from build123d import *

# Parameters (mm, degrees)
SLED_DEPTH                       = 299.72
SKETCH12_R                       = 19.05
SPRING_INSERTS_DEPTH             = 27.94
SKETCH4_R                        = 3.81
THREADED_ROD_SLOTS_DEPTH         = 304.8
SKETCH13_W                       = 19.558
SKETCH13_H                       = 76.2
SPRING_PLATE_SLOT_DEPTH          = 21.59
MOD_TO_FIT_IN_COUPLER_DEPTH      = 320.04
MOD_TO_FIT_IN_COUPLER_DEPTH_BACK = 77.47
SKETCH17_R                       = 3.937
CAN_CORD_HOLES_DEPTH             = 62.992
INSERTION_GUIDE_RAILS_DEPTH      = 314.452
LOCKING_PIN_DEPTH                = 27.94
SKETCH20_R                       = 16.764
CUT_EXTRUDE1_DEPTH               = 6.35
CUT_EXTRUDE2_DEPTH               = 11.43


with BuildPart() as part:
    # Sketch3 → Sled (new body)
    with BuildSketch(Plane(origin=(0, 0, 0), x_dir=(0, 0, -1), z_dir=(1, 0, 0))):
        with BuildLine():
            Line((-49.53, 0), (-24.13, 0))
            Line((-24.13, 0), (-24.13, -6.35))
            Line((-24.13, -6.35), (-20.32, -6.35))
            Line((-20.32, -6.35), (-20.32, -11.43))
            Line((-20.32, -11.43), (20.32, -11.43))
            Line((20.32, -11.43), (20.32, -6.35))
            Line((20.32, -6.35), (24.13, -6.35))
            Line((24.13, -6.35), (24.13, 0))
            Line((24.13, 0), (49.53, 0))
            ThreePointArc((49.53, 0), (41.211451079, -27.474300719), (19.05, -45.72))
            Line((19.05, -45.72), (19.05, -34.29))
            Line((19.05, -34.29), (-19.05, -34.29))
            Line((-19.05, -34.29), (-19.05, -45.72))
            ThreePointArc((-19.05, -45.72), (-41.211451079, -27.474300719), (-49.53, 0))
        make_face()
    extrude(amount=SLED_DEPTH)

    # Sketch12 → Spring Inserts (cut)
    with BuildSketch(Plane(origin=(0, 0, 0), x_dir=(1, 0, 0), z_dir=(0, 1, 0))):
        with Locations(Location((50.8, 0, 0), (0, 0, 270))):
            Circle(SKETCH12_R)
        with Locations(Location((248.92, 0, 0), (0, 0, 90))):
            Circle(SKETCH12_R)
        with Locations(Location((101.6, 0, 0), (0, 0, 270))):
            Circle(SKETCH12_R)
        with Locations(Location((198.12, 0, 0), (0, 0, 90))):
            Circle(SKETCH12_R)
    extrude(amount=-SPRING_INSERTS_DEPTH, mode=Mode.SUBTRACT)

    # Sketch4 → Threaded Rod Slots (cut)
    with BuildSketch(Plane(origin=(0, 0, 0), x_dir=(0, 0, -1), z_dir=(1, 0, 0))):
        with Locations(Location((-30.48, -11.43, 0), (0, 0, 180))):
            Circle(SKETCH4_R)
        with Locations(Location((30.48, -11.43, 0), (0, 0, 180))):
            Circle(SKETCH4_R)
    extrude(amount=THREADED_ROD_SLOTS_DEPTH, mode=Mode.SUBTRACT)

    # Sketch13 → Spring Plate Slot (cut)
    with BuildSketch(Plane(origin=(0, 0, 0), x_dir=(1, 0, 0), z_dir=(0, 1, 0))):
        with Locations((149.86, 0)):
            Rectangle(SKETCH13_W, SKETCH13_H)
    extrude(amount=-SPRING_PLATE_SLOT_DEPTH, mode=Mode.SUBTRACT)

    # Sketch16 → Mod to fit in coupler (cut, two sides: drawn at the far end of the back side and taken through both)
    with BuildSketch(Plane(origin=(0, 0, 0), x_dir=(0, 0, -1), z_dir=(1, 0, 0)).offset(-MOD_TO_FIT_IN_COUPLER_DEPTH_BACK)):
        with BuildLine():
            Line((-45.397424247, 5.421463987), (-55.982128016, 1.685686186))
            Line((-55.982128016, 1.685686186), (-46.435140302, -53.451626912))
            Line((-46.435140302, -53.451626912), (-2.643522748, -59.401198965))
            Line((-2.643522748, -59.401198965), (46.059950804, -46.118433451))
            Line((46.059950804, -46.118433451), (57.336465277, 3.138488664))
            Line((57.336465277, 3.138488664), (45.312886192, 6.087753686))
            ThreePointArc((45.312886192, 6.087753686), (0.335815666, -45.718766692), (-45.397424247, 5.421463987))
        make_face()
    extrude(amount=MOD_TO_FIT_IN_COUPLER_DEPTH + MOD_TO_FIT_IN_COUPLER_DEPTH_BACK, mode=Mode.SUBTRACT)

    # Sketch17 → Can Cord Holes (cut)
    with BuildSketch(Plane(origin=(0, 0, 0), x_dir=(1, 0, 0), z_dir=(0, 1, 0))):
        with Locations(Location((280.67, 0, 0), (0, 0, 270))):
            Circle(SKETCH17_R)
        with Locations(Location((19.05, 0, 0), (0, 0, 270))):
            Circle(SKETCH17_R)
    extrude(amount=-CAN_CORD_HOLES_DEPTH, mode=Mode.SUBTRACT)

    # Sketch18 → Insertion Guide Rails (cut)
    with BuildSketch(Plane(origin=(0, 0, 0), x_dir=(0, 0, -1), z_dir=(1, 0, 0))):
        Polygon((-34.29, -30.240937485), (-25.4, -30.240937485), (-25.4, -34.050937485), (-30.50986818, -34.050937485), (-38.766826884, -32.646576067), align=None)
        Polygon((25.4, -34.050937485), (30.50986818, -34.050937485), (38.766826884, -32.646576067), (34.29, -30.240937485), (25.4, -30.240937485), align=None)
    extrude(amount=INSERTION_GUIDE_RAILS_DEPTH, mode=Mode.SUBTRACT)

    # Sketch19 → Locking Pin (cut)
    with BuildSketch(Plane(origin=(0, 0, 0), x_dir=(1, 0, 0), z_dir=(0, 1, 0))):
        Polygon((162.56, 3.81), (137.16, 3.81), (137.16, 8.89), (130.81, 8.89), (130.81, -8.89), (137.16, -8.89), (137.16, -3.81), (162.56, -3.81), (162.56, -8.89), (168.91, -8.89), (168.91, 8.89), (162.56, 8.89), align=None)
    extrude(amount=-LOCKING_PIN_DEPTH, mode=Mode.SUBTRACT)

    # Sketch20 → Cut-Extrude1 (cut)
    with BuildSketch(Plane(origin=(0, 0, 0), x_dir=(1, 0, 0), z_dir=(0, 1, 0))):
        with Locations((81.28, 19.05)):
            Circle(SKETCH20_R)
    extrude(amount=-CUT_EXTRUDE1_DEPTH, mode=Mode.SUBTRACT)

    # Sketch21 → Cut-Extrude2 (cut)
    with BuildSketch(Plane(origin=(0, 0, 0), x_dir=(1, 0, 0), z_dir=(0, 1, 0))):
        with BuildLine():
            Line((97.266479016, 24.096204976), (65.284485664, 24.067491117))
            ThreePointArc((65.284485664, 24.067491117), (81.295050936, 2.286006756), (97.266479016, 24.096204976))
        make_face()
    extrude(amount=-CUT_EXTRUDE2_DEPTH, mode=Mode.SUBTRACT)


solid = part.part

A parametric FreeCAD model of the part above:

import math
import FreeCAD as App
import Part
import Sketcher
from FreeCAD import Vector
Q = App.Units.Quantity


def add_polygon(sketch, points):
    """Adds a closed chain of lines whose ends are joined by coincident constraints."""
    first, n = sketch.GeometryCount, len(points)
    for a, b in zip(points, points[1:] + points[:1]):
        sketch.addGeometry(Part.LineSegment(App.Vector(*a, 0), App.Vector(*b, 0)), False)
    for i in range(n):
        sketch.addConstraint(Sketcher.Constraint("Coincident", first + i, 2, first + (i + 1) % n, 1))

doc = App.newDocument("Part")
body = doc.addObject("PartDesign::Body", "Body")

# Sketch on YZ plane
sketch1 = doc.addObject("Sketcher::SketchObject", "Sketch")
body.addObject(sketch1)
sketch1.AttachmentSupport = (doc.YZ_Plane, [""])
sketch1.MapMode = "FlatFace"
sketch1.addGeometry(Part.LineSegment(Vector(0, 24.1, 0), Vector(0, 49.5, 0)), False)
sketch1.addGeometry(Part.ArcOfCircle(Part.Circle(Vector(0, 0, 0), Vector(0, 0, 1), 49.5), math.radians(90), math.radians(157)), False)
sketch1.addGeometry(Part.LineSegment(Vector(-45.7, 19.1, 0), Vector(-34.3, 19.1, 0)), False)
sketch1.addGeometry(Part.LineSegment(Vector(-34.3, 19.1, 0), Vector(-34.3, -19.1, 0)), False)
sketch1.addGeometry(Part.LineSegment(Vector(-34.3, -19.1, 0), Vector(-45.7, -19.1, 0)), False)
sketch1.addGeometry(Part.ArcOfCircle(Part.Circle(Vector(0, 0, 0), Vector(0, 0, 1), 49.5), math.radians(-157), math.radians(-90)), False)
sketch1.addGeometry(Part.LineSegment(Vector(0, -49.5, 0), Vector(0, -24.1, 0)), False)
sketch1.addGeometry(Part.LineSegment(Vector(0, -24.1, 0), Vector(-6.3, -24.1, 0)), False)
sketch1.addGeometry(Part.LineSegment(Vector(-6.3, -24.1, 0), Vector(-6.3, -20.3, 0)), False)
sketch1.addGeometry(Part.LineSegment(Vector(-6.3, -20.3, 0), Vector(-11.4, -20.3, 0)), False)
sketch1.addGeometry(Part.LineSegment(Vector(-11.4, -20.3, 0), Vector(-11.4, 20.3, 0)), False)
sketch1.addGeometry(Part.LineSegment(Vector(-11.4, 20.3, 0), Vector(-6.3, 20.3, 0)), False)
sketch1.addGeometry(Part.LineSegment(Vector(-6.3, 20.3, 0), Vector(-6.3, 24.1, 0)), False)
sketch1.addGeometry(Part.LineSegment(Vector(-6.3, 24.1, 0), Vector(0, 24.1, 0)), False)
sketch1.addConstraint(Sketcher.Constraint("Coincident", 0, 2, 1, 1))
sketch1.addConstraint(Sketcher.Constraint("Coincident", 1, 2, 2, 1))
sketch1.addConstraint(Sketcher.Constraint("Coincident", 2, 2, 3, 1))
sketch1.addConstraint(Sketcher.Constraint("Coincident", 3, 2, 4, 1))
sketch1.addConstraint(Sketcher.Constraint("Coincident", 4, 2, 5, 1))
sketch1.addConstraint(Sketcher.Constraint("Coincident", 5, 2, 6, 1))
sketch1.addConstraint(Sketcher.Constraint("Coincident", 6, 2, 7, 1))
sketch1.addConstraint(Sketcher.Constraint("Coincident", 7, 2, 8, 1))
sketch1.addConstraint(Sketcher.Constraint("Coincident", 8, 2, 9, 1))
sketch1.addConstraint(Sketcher.Constraint("Coincident", 9, 2, 10, 1))
sketch1.addConstraint(Sketcher.Constraint("Coincident", 10, 2, 11, 1))
sketch1.addConstraint(Sketcher.Constraint("Coincident", 11, 2, 12, 1))
sketch1.addConstraint(Sketcher.Constraint("Coincident", 12, 2, 13, 1))
sketch1.addConstraint(Sketcher.Constraint("Coincident", 13, 2, 0, 1))
sketch1.addConstraint(Sketcher.Constraint("Vertical", 0))
sketch1.addConstraint(Sketcher.Constraint("Horizontal", 2))
sketch1.addConstraint(Sketcher.Constraint("Vertical", 3))
sketch1.addConstraint(Sketcher.Constraint("Horizontal", 4))
sketch1.addConstraint(Sketcher.Constraint("Vertical", 6))
sketch1.addConstraint(Sketcher.Constraint("Horizontal", 7))
sketch1.addConstraint(Sketcher.Constraint("Vertical", 8))
sketch1.addConstraint(Sketcher.Constraint("Horizontal", 9))
sketch1.addConstraint(Sketcher.Constraint("Vertical", 10))
sketch1.addConstraint(Sketcher.Constraint("Horizontal", 11))
sketch1.addConstraint(Sketcher.Constraint("Vertical", 12))
sketch1.addConstraint(Sketcher.Constraint("Horizontal", 13))
sketch1.addConstraint(Sketcher.Constraint("Coincident", 1, 3, -1, 1))
sketch1.addConstraint(Sketcher.Constraint("Coincident", 5, 3, -1, 1))
sketch1.addConstraint(Sketcher.Constraint("Equal", 1, 5))
sketch1.addConstraint(Sketcher.Constraint("Symmetric", 6, 2, 13, 2, -1, 1))
sketch1.addConstraint(Sketcher.Constraint("Symmetric", 8, 2, 11, 2, -1))
sketch1.addConstraint(Sketcher.Constraint("PointOnObject", 0, 2, -2))
sketch1.addConstraint(Sketcher.Constraint("Vertical", 1, 2, 4, 2))
sketch1.addConstraint(Sketcher.Constraint("DistanceY", 0, 1, 0, 2, Q("1 in")))
sketch1.addConstraint(Sketcher.Constraint("Radius", 1, Q("1.95 in")))
sketch1.addConstraint(Sketcher.Constraint("DistanceX", 9, 2, 9, 1, Q("0.2 in")))
sketch1.addConstraint(Sketcher.Constraint("DistanceY", 3, 2, 3, 1, Q("1.5 in")))
sketch1.addConstraint(Sketcher.Constraint("DistanceY", 10, 1, 10, 2, Q("1.6 in")))
sketch1.addConstraint(Sketcher.Constraint("DistanceX", 2, 1, 2, 2, Q("0.45 in")))
sketch1.addConstraint(Sketcher.Constraint("DistanceX", 7, 2, 7, 1, Q("0.25 in")))
pad1 = doc.addObject("PartDesign::Pad", "Pad")
body.addObject(pad1)
pad1.Profile = sketch1
pad1.Length = Q("11.8 in")

# Sketch on XZ plane
sketch2 = doc.addObject("Sketcher::SketchObject", "Sketch001")
body.addObject(sketch2)
sketch2.AttachmentSupport = (doc.XZ_Plane, [""])
sketch2.MapMode = "FlatFace"
sketch2.addGeometry(Part.Circle(Vector(51, 0, 0), Vector(0, 0, 1), 19), False)
sketch2.addGeometry(Part.Circle(Vector(249, 0, 0), Vector(0, 0, 1), 19), False)
sketch2.addGeometry(Part.Circle(Vector(102, 0, 0), Vector(0, 0, 1), 19), False)
sketch2.addGeometry(Part.Circle(Vector(198, 0, 0), Vector(0, 0, 1), 19), False)
sketch2.addConstraint(Sketcher.Constraint("Equal", 0, 1))
sketch2.addConstraint(Sketcher.Constraint("Equal", 1, 2))
sketch2.addConstraint(Sketcher.Constraint("Equal", 2, 3))
sketch2.addConstraint(Sketcher.Constraint("PointOnObject", 0, 3, -1))
sketch2.addConstraint(Sketcher.Constraint("PointOnObject", 1, 3, -1))
sketch2.addConstraint(Sketcher.Constraint("PointOnObject", 2, 3, -1))
sketch2.addConstraint(Sketcher.Constraint("PointOnObject", 3, 3, -1))
sketch2.addConstraint(Sketcher.Constraint("Diameter", 0, Q("1.5 in")))
sketch2.addConstraint(Sketcher.Constraint("DistanceX", -1, 1, 0, 3, Q("2 in")))
sketch2.addConstraint(Sketcher.Constraint("DistanceX", -1, 1, 2, 3, Q("4 in")))
sketch2.addConstraint(Sketcher.Constraint("DistanceX", 3, 3, 1, 3, Q("2 in")))
sketch2.addConstraint(Sketcher.Constraint("DistanceX", -1, 1, 1, 3, Q("9.8 in")))
pocket1 = doc.addObject("PartDesign::Pocket", "Pocket")
body.addObject(pocket1)
pocket1.Profile = sketch2
pocket1.Length = Q("1.1 in")
pocket1.Reversed = True

# Sketch on YZ plane
sketch3 = doc.addObject("Sketcher::SketchObject", "Sketch002")
body.addObject(sketch3)
sketch3.AttachmentSupport = (doc.YZ_Plane, [""])
sketch3.MapMode = "FlatFace"
sketch3.addGeometry(Part.Circle(Vector(-11.4, 30.5, 0), Vector(0, 0, 1), 3.8), False)
sketch3.addGeometry(Part.Circle(Vector(-11.4, -30.5, 0), Vector(0, 0, 1), 3.8), False)
sketch3.addConstraint(Sketcher.Constraint("Equal", 0, 1))
sketch3.addConstraint(Sketcher.Constraint("Symmetric", 0, 3, 1, 3, -1))
sketch3.addConstraint(Sketcher.Constraint("Diameter", 0, Q("0.3 in")))
sketch3.addConstraint(Sketcher.Constraint("DistanceY", -1, 1, 0, 3, Q("1.2 in")))
sketch3.addConstraint(Sketcher.Constraint("DistanceX", 0, 3, -1, 1, Q("0.45 in")))
pocket2 = doc.addObject("PartDesign::Pocket", "Pocket001")
body.addObject(pocket2)
pocket2.Profile = sketch3
pocket2.Length = Q("12 in")
pocket2.Reversed = True

# Sketch on XZ plane
sketch4 = doc.addObject("Sketcher::SketchObject", "Sketch003")
body.addObject(sketch4)
sketch4.AttachmentSupport = (doc.XZ_Plane, [""])
sketch4.MapMode = "FlatFace"
add_polygon(sketch4, [(140, -38), (140, 38), (160, 38), (160, -38)])  # lines 0-3
sketch4.addConstraint(Sketcher.Constraint("Vertical", 0))
sketch4.addConstraint(Sketcher.Constraint("Horizontal", 1))
sketch4.addConstraint(Sketcher.Constraint("Vertical", 2))
sketch4.addConstraint(Sketcher.Constraint("Horizontal", 3))
sketch4.addConstraint(Sketcher.Constraint("DistanceY", 0, 1, 0, 2, Q("3 in")))
sketch4.addConstraint(Sketcher.Constraint("DistanceX", 1, 1, 1, 2, Q("0.77 in")))
sketch4.addConstraint(Sketcher.Constraint("DistanceY", -1, 1, 0, 2, Q("1.5 in")))
sketch4.addConstraint(Sketcher.Constraint("DistanceX", -1, 1, 0, 2, Q("5.515 in")))
pocket3 = doc.addObject("PartDesign::Pocket", "Pocket002")
body.addObject(pocket3)
pocket3.Profile = sketch4
pocket3.Length = Q("0.85 in")
pocket3.Reversed = True

# Sketch on YZ plane
sketch5 = doc.addObject("Sketcher::SketchObject", "Sketch004")
body.addObject(sketch5)
sketch5.AttachmentSupport = (doc.YZ_Plane, [""])
sketch5.MapMode = "FlatFace"
sketch5.addGeometry(Part.LineSegment(Vector(5, 45, 0), Vector(2, 56, 0)), False)
sketch5.addGeometry(Part.LineSegment(Vector(2, 56, 0), Vector(-53, 46, 0)), False)
sketch5.addGeometry(Part.LineSegment(Vector(-53, 46, 0), Vector(-59, 3, 0)), False)
sketch5.addGeometry(Part.LineSegment(Vector(-59, 3, 0), Vector(-46, -46, 0)), False)
sketch5.addGeometry(Part.LineSegment(Vector(-46, -46, 0), Vector(3, -57, 0)), False)
sketch5.addGeometry(Part.LineSegment(Vector(3, -57, 0), Vector(6, -45, 0)), False)
sketch5.addGeometry(Part.ArcOfCircle(Part.Circle(Vector(0, 0, 0), Vector(0, 0, 1), 46), math.radians(83), math.radians(278)), False)
sketch5.addConstraint(Sketcher.Constraint("Coincident", 0, 2, 1, 1))
sketch5.addConstraint(Sketcher.Constraint("Coincident", 1, 2, 2, 1))
sketch5.addConstraint(Sketcher.Constraint("Coincident", 2, 2, 3, 1))
sketch5.addConstraint(Sketcher.Constraint("Coincident", 3, 2, 4, 1))
sketch5.addConstraint(Sketcher.Constraint("Coincident", 4, 2, 5, 1))
sketch5.addConstraint(Sketcher.Constraint("Coincident", 5, 2, 6, 2))
sketch5.addConstraint(Sketcher.Constraint("Coincident", 6, 1, 0, 1))
sketch5.addConstraint(Sketcher.Constraint("Coincident", 6, 3, -1, 1))
sketch5.addConstraint(Sketcher.Constraint("Radius", 6, Q("1.8 in")))
sketch5.addConstraint(Sketcher.Constraint("DistanceY", -1, 1, 6, 1, Q("1.7873002 in")))
sketch5.addConstraint(Sketcher.Constraint("DistanceX", 2, 2, -1, 1, Q("59.401199 mm")))
sketch5.addConstraint(Sketcher.Constraint("DistanceY", 2, 2, 6, 1, Q("42.753901 mm")))
sketch5.addConstraint(Sketcher.Constraint("Distance", 4, Q("50.53122 mm")))
sketch5.addConstraint(Sketcher.Constraint("Distance", 5, Q("12.380009 mm")))
sketch5.addConstraint(Sketcher.Constraint("DistanceY", -1, 1, 0, 2, Q("55.982128 mm")))
sketch5.addConstraint(Sketcher.Constraint("DistanceY", -1, 1, 1, 2, Q("46.43514 mm")))
sketch5.addConstraint(Sketcher.Constraint("DistanceY", 3, 2, -1, 1, Q("46.059951 mm")))
sketch5.addConstraint(Sketcher.Constraint("DistanceX", -1, 1, 4, 2, Q("3.138489 mm")))
sketch5.addConstraint(Sketcher.Constraint("DistanceX", 3, 2, 0, 2, Q("47.80412 mm")))
sketch5.addConstraint(Sketcher.Constraint("DistanceY", 4, 2, 2, 2, Q("59.979988 mm")))
sketch5.addConstraint(Sketcher.Constraint("DistanceX", 1, 2, 6, 1, Q("58.873091 mm")))
pocket4 = doc.addObject("PartDesign::Pocket", "Pocket003")
body.addObject(pocket4)
pocket4.Profile = sketch5
pocket4.Type = "ThroughAll"
pocket4.Midplane = True

# Sketch on XZ plane
sketch6 = doc.addObject("Sketcher::SketchObject", "Sketch005")
body.addObject(sketch6)
sketch6.AttachmentSupport = (doc.XZ_Plane, [""])
sketch6.MapMode = "FlatFace"
sketch6.addGeometry(Part.Circle(Vector(280.7, 0, 0), Vector(0, 0, 1), 3.9), False)
sketch6.addGeometry(Part.Circle(Vector(19.1, 0, 0), Vector(0, 0, 1), 3.9), False)
sketch6.addConstraint(Sketcher.Constraint("Equal", 0, 1))
sketch6.addConstraint(Sketcher.Constraint("PointOnObject", 0, 3, -1))
sketch6.addConstraint(Sketcher.Constraint("PointOnObject", 1, 3, -1))
sketch6.addConstraint(Sketcher.Constraint("Diameter", 0, Q("0.31 in")))
sketch6.addConstraint(Sketcher.Constraint("DistanceX", 1, 3, 0, 3, Q("10.3 in")))
sketch6.addConstraint(Sketcher.Constraint("DistanceX", -1, 1, 0, 3, Q("11.05 in")))
pocket5 = doc.addObject("PartDesign::Pocket", "Pocket004")
body.addObject(pocket5)
pocket5.Profile = sketch6
pocket5.Length = Q("2.48 in")
pocket5.Reversed = True

# Sketch on YZ plane
sketch7 = doc.addObject("Sketcher::SketchObject", "Sketch006")
body.addObject(sketch7)
sketch7.AttachmentSupport = (doc.YZ_Plane, [""])
sketch7.MapMode = "FlatFace"
add_polygon(sketch7, [(-30.2, 25.4), (-30.2, 34.3), (-32.6, 38.8), (-34.1, 30.5), (-34.1, 25.4)])  # lines 0-4
add_polygon(sketch7, [(-34.1, -25.4), (-34.1, -30.5), (-32.6, -38.8), (-30.2, -34.3), (-30.2, -25.4)])  # lines 5-9
sketch7.addConstraint(Sketcher.Constraint("Vertical", 0))
sketch7.addConstraint(Sketcher.Constraint("Vertical", 3))
sketch7.addConstraint(Sketcher.Constraint("Horizontal", 4))
sketch7.addConstraint(Sketcher.Constraint("Vertical", 5))
sketch7.addConstraint(Sketcher.Constraint("Vertical", 8))
sketch7.addConstraint(Sketcher.Constraint("Horizontal", 9))
sketch7.addConstraint(Sketcher.Constraint("Symmetric", 2, 2, 5, 2, -1))
sketch7.addConstraint(Sketcher.Constraint("Symmetric", 1, 2, 6, 2, -1))
sketch7.addConstraint(Sketcher.Constraint("Symmetric", 0, 2, 7, 2, -1))
sketch7.addConstraint(Sketcher.Constraint("Equal", 3, 5))
sketch7.addConstraint(Sketcher.Constraint("DistanceY", -1, 1, 3, 2, Q("1 in")))
sketch7.addConstraint(Sketcher.Constraint("DistanceX", 4, 1, 4, 2, Q("0.15 in")))
sketch7.addConstraint(Sketcher.Constraint("DistanceY", 0, 1, 0, 2, Q("0.35 in")))
sketch7.addConstraint(Sketcher.Constraint("DistanceY", 3, 2, 3, 1, Q("5.109868 mm")))
sketch7.addConstraint(Sketcher.Constraint("Distance", 1, Q("5.082231 mm")))
sketch7.addConstraint(Sketcher.Constraint("DistanceX", 1, 2, 0, 2, Q("2.405639 mm")))
sketch7.addConstraint(Sketcher.Constraint("DistanceX", 0, 2, -1, 1, Q("30.240937 mm")))
pocket6 = doc.addObject("PartDesign::Pocket", "Pocket005")
body.addObject(pocket6)
pocket6.Profile = sketch7
pocket6.Length = Q("12.38 in")
pocket6.Reversed = True

# Sketch on XZ plane
sketch8 = doc.addObject("Sketcher::SketchObject", "Sketch007")
body.addObject(sketch8)
sketch8.AttachmentSupport = (doc.XZ_Plane, [""])
sketch8.MapMode = "FlatFace"
add_polygon(sketch8, [(163, -4), (137, -4), (137, -9), (131, -9), (131, 9), (137, 9), (137, 4), (163, 4), (163, 9), (169, 9), (169, -9), (163, -9)])  # lines 0-11
sketch8.addConstraint(Sketcher.Constraint("Horizontal", 0))
sketch8.addConstraint(Sketcher.Constraint("Vertical", 1))
sketch8.addConstraint(Sketcher.Constraint("Horizontal", 2))
sketch8.addConstraint(Sketcher.Constraint("Vertical", 3))
sketch8.addConstraint(Sketcher.Constraint("Horizontal", 4))
sketch8.addConstraint(Sketcher.Constraint("Vertical", 5))
sketch8.addConstraint(Sketcher.Constraint("Horizontal", 6))
sketch8.addConstraint(Sketcher.Constraint("Vertical", 7))
sketch8.addConstraint(Sketcher.Constraint("Horizontal", 8))
sketch8.addConstraint(Sketcher.Constraint("Vertical", 9))
sketch8.addConstraint(Sketcher.Constraint("Horizontal", 10))
sketch8.addConstraint(Sketcher.Constraint("Vertical", 11))
sketch8.addConstraint(Sketcher.Constraint("Symmetric", 1, 2, 4, 2, -1))
sketch8.addConstraint(Sketcher.Constraint("Symmetric", 7, 2, 10, 2, -1))
sketch8.addConstraint(Sketcher.Constraint("Horizontal", 4, 2, 7, 2))
sketch8.addConstraint(Sketcher.Constraint("Equal", 4, 8))
sketch8.addConstraint(Sketcher.Constraint("Equal", 1, 5))
sketch8.addConstraint(Sketcher.Constraint("DistanceX", 0, 2, 0, 1, Q("1 in")))
sketch8.addConstraint(Sketcher.Constraint("DistanceY", 1, 2, 1, 1, Q("0.2 in")))
sketch8.addConstraint(Sketcher.Constraint("DistanceY", 3, 1, 3, 2, Q("0.7 in")))
sketch8.addConstraint(Sketcher.Constraint("DistanceX", 2, 2, 2, 1, Q("0.25 in")))
sketch8.addConstraint(Sketcher.Constraint("DistanceX", -1, 1, 0, 2, Q("5.4 in")))
pocket7 = doc.addObject("PartDesign::Pocket", "Pocket006")
body.addObject(pocket7)
pocket7.Profile = sketch8
pocket7.Length = Q("1.1 in")
pocket7.Reversed = True

# Sketch on XZ plane
sketch9 = doc.addObject("Sketcher::SketchObject", "Sketch008")
body.addObject(sketch9)
sketch9.AttachmentSupport = (doc.XZ_Plane, [""])
sketch9.MapMode = "FlatFace"
sketch9.addGeometry(Part.Circle(Vector(81, -19, 0), Vector(0, 0, 1), 17), False)
sketch9.addConstraint(Sketcher.Constraint("Diameter", 0, Q("1.32 in")))
sketch9.addConstraint(Sketcher.Constraint("DistanceX", -1, 1, 0, 3, Q("3.2 in")))
sketch9.addConstraint(Sketcher.Constraint("DistanceY", 0, 3, -1, 1, Q("0.75 in")))
pocket8 = doc.addObject("PartDesign::Pocket", "Pocket007")
body.addObject(pocket8)
pocket8.Profile = sketch9
pocket8.Length = Q("0.25 in")
pocket8.Reversed = True

# Sketch on XZ plane
sketch10 = doc.addObject("Sketcher::SketchObject", "Sketch009")
body.addObject(sketch10)
sketch10.AttachmentSupport = (doc.XZ_Plane, [""])
sketch10.MapMode = "FlatFace"
sketch10.addGeometry(Part.LineSegment(Vector(97, -24, 0), Vector(65, -24, 0)), False)
sketch10.addGeometry(Part.ArcOfCircle(Part.Circle(Vector(81, -19, 0), Vector(0, 0, 1), 17), math.radians(-18), math.radians(197)), False)
sketch10.addConstraint(Sketcher.Constraint("Coincident", 0, 1, 1, 1))
sketch10.addConstraint(Sketcher.Constraint("Coincident", 1, 2, 0, 2))
sketch10.addConstraint(Sketcher.Constraint("Radius", 1, Q("0.66 in")))
sketch10.addConstraint(Sketcher.Constraint("DistanceX", -1, 1, 1, 3, Q("3.2 in")))
sketch10.addConstraint(Sketcher.Constraint("DistanceY", 1, 3, -1, 1, Q("0.75 in")))
sketch10.addConstraint(Sketcher.Constraint("DistanceX", -1, 1, 0, 1, Q("97.266479 mm")))
sketch10.addConstraint(Sketcher.Constraint("DistanceY", 1, 2, -1, 1, Q("24.067491 mm")))
pocket9 = doc.addObject("PartDesign::Pocket", "Pocket008")
body.addObject(pocket9)
pocket9.Profile = sketch10
pocket9.Length = Q("0.45 in")
pocket9.Reversed = True

doc.recompute()
